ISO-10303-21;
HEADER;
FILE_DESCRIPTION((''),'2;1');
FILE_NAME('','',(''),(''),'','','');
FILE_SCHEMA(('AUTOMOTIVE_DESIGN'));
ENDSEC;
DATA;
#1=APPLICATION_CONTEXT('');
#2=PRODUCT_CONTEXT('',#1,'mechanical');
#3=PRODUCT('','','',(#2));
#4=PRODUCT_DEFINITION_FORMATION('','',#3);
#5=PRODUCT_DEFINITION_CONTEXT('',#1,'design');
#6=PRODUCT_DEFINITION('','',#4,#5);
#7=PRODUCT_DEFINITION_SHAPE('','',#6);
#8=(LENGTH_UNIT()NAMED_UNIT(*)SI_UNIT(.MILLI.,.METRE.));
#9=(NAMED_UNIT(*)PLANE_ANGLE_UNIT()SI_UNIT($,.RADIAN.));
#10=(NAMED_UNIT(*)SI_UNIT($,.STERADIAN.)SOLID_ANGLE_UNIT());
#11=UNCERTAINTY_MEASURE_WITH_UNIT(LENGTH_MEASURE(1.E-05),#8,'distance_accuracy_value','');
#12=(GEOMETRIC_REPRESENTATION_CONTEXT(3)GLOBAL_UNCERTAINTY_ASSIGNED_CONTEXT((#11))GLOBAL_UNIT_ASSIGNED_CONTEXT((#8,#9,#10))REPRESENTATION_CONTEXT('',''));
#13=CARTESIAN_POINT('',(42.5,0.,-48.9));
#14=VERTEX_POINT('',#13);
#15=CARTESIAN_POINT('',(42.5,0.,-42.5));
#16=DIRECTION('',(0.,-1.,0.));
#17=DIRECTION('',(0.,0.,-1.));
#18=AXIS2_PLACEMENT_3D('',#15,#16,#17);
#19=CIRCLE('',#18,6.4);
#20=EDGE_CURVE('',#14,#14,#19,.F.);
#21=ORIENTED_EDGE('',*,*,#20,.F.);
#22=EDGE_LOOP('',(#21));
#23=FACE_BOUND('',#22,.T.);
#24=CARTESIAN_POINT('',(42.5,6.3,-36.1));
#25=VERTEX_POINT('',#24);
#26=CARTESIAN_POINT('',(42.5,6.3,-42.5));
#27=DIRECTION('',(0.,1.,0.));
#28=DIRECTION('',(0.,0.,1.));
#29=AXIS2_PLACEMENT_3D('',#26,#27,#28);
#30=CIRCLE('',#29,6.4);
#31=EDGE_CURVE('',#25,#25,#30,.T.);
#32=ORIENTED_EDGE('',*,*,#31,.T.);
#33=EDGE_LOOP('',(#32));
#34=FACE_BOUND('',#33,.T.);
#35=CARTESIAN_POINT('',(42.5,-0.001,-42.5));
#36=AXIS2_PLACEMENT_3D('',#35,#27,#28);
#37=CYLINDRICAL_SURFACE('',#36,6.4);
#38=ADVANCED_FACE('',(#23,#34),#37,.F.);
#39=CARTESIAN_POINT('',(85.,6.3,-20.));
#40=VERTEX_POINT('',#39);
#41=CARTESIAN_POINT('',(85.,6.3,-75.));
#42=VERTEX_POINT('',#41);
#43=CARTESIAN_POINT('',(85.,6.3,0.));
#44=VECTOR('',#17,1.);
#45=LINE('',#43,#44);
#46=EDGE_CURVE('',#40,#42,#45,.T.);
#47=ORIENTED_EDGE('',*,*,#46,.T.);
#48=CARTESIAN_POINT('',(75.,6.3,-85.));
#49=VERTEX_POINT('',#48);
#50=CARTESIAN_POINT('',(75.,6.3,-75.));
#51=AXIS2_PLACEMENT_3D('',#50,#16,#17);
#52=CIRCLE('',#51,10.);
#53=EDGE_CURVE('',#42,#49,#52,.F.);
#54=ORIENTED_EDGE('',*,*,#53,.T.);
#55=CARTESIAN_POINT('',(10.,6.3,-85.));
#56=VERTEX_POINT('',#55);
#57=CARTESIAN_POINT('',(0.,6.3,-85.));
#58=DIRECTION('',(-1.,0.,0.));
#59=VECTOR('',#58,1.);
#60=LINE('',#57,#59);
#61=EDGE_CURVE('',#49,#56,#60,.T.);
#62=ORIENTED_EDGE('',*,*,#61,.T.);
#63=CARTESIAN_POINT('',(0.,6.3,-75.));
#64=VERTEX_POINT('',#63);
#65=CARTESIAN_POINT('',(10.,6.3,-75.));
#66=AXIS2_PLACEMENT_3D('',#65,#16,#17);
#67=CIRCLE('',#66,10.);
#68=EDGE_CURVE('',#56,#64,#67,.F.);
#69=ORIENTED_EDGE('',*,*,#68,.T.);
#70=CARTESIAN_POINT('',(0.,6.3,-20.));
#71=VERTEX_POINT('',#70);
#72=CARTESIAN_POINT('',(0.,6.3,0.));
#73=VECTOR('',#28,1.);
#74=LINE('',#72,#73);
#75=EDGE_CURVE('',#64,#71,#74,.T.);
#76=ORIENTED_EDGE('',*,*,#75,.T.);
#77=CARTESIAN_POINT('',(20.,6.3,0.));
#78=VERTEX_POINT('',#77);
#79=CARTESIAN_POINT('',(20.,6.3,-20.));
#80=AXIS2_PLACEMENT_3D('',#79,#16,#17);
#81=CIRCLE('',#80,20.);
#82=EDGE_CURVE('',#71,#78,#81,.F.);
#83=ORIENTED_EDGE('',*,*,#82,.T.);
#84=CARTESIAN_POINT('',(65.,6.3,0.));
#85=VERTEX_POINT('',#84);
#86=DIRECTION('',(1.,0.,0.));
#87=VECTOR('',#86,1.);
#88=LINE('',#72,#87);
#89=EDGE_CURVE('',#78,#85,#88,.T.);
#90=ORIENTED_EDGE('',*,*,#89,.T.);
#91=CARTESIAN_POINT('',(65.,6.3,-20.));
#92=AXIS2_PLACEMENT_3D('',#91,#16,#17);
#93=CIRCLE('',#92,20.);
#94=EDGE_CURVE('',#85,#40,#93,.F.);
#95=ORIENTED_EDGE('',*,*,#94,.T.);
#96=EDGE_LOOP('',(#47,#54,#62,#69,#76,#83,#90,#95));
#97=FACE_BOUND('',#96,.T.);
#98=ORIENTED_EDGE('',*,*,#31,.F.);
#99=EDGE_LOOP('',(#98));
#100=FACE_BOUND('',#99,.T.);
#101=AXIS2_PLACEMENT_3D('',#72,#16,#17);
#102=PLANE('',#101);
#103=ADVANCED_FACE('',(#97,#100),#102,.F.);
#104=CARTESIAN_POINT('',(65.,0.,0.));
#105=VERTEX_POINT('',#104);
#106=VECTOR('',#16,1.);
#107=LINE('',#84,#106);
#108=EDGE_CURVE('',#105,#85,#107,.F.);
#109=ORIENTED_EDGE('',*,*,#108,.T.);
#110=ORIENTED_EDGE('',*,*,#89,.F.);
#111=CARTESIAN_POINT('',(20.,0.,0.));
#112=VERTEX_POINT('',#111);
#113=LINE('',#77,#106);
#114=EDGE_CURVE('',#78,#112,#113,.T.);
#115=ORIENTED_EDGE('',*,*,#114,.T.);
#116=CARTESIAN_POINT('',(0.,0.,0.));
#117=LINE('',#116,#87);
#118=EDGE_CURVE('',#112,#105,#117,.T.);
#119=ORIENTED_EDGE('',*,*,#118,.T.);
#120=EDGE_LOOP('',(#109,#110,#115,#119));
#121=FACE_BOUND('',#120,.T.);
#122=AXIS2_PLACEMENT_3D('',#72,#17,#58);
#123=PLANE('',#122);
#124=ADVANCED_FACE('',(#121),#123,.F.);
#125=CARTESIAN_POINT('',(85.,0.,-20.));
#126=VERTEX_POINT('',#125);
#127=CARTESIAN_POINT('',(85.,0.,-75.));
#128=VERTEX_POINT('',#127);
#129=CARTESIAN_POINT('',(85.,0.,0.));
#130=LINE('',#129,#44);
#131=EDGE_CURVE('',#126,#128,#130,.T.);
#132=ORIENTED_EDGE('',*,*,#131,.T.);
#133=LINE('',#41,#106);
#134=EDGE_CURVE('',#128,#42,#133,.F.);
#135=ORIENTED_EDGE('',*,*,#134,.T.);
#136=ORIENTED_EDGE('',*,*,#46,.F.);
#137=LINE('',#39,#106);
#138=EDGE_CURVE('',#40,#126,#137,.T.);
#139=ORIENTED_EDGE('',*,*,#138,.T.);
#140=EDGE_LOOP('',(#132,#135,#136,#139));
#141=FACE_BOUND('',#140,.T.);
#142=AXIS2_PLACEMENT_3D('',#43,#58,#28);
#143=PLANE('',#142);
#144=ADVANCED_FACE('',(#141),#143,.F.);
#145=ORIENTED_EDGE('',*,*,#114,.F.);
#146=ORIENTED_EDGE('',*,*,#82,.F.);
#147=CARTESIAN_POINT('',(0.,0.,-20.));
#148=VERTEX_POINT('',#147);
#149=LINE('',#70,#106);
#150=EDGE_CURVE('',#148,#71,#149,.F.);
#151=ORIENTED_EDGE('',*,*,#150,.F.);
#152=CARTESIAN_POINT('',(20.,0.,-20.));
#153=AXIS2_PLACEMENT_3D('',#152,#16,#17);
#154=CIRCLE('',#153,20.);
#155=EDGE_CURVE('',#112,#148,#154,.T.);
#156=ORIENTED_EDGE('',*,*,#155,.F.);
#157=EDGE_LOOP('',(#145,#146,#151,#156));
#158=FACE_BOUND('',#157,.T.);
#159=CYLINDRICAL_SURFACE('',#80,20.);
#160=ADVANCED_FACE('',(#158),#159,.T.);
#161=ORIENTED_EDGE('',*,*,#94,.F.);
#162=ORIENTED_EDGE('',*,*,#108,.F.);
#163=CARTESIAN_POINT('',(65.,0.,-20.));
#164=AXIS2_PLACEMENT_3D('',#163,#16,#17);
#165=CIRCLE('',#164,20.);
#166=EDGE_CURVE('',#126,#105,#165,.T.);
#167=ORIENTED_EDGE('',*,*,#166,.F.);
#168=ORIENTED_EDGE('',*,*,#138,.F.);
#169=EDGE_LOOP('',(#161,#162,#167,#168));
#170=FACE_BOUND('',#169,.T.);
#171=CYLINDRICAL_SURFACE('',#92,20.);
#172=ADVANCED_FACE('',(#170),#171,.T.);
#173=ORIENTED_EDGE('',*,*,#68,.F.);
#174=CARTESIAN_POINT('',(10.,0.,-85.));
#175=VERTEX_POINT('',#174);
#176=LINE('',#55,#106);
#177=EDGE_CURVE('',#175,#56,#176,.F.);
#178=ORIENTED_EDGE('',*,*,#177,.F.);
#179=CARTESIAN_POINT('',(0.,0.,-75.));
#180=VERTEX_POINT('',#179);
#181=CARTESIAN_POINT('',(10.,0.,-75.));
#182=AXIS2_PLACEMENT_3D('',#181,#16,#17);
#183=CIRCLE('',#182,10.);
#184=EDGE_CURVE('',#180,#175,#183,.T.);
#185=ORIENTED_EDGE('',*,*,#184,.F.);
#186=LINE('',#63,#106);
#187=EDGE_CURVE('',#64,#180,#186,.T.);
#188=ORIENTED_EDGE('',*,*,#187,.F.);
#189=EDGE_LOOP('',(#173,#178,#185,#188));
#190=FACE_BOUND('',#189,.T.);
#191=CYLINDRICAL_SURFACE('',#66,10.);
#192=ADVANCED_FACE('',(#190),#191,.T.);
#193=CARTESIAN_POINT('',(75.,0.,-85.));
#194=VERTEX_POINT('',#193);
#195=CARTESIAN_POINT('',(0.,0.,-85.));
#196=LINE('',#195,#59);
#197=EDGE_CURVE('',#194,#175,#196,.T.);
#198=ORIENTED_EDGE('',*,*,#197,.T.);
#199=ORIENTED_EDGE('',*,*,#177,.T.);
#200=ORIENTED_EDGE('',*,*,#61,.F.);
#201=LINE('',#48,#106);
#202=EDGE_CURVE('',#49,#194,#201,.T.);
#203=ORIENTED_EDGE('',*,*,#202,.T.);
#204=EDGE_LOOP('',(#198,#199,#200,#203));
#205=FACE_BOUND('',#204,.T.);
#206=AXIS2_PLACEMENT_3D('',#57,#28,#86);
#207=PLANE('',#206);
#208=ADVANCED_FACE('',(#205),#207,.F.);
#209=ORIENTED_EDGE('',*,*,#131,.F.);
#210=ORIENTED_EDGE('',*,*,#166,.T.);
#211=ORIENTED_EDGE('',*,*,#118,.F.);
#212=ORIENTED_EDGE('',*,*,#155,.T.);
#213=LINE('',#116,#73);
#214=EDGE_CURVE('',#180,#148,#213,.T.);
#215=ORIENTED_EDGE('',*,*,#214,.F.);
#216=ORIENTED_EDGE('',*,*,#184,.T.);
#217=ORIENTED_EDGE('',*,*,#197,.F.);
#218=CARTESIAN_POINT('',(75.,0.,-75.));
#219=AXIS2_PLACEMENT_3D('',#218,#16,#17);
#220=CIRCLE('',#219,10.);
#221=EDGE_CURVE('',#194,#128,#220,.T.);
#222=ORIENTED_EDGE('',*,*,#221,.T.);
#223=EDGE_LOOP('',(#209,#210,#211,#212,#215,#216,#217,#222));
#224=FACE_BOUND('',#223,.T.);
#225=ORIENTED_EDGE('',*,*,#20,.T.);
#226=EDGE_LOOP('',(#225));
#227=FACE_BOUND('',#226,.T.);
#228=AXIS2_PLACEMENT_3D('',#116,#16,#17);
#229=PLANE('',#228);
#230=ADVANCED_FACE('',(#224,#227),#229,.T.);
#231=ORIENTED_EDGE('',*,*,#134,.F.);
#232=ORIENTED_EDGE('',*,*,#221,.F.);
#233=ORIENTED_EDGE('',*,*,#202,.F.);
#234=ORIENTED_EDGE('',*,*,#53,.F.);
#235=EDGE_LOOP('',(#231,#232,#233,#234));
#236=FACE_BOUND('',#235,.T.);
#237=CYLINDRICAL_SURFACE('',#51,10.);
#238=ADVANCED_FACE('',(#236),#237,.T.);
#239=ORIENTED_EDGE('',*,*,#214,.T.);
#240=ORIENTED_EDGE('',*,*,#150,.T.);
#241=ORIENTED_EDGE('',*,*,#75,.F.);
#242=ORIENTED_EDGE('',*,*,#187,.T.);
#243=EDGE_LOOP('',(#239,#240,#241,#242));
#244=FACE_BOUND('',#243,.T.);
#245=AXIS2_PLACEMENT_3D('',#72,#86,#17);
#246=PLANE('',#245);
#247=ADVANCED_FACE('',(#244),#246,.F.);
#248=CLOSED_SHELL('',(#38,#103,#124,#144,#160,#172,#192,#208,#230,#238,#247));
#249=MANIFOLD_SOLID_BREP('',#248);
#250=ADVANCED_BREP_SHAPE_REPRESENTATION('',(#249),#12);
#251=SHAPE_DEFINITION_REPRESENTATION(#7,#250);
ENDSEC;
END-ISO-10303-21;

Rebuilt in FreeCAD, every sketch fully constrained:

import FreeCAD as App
import Part
import Sketcher


def edges_at(feature, points):
    """Names of the edges that pass closest to the given points."""
    edges = feature.Shape.Edges
    near = lambda p: min(range(len(edges)), key=lambda i: edges[i].distToShape(Part.Vertex(*p))[0])
    return sorted({f"Edge{near(p) + 1}" for p in points})


def add_polygon(sketch, points):
    """Adds a closed chain of lines whose ends are joined by coincident constraints."""
    first, n = sketch.GeometryCount, len(points)
    for a, b in zip(points, points[1:] + points[:1]):
        sketch.addGeometry(Part.LineSegment(App.Vector(*a, 0), App.Vector(*b, 0)), False)
    for i in range(n):
        sketch.addConstraint(Sketcher.Constraint("Coincident", first + i, 2, first + (i + 1) % n, 1))

doc = App.newDocument("Part")
body = doc.addObject("PartDesign::Body", "Body")

sketch1 = body.newObject("Sketcher::SketchObject", "Sketch")
sketch1.AttachmentSupport = (doc.getObject("XZ_Plane"), [""])
sketch1.MapMode = "FlatFace"
add_polygon(sketch1, [(0, -85), (0, 0), (85, 0), (85, -85)])
sketch1.addConstraint([
    Sketcher.Constraint("Vertical", 0),
    Sketcher.Constraint("Horizontal", 1),
    Sketcher.Constraint("Vertical", 2),
    Sketcher.Constraint("Horizontal", 3),
    Sketcher.Constraint("Coincident", 0, 2, -1, 1),
    Sketcher.Constraint("Equal", 3, 0),
    Sketcher.Constraint("DistanceX", 1, 1, 1, 2, 85.0),
])
pad1 = body.newObject("PartDesign::Pad", "Pad")
pad1.Profile = sketch1
pad1.Length = 6.3
pad1.Reversed = True

sketch2 = body.newObject("Sketcher::SketchObject", "Sketch001")
sketch2.AttachmentSupport = (doc.getObject("XZ_Plane"), [""])
sketch2.MapMode = "FlatFace"
sketch2.AttachmentOffset = App.Placement(App.Vector(0, 0, -6.3), App.Rotation())
sketch2.addGeometry(Part.Circle(App.Vector(42.5, -42.5, 0), App.Vector(0, 0, 1), 6.4), False)
sketch2.addConstraint([
    Sketcher.Constraint("Diameter", 0, 12.8),
    Sketcher.Constraint("DistanceX", -1, 1, 0, 3, 42.5),
    Sketcher.Constraint("DistanceY", 0, 3, -1, 1, 42.5),
])
pocket1 = body.newObject("PartDesign::Pocket", "Pocket")
pocket1.Profile = sketch2
pocket1.Type = "UpToFirst"
pocket1.Reversed = True
doc.recompute()

fillet = body.newObject("PartDesign::Fillet", "Fillet")
fillet.Base = (pocket1, edges_at(pocket1, [(0, 3.15, -85), (85, 3.15, -85)]))
fillet.Radius = 10
doc.recompute()

fillet2 = body.newObject("PartDesign::Fillet", "Fillet001")
fillet2.Base = (fillet, edges_at(fillet, [(85, 3.15, 0), (0, 3.15, 0)]))
fillet2.Radius = 20

doc.recompute()
